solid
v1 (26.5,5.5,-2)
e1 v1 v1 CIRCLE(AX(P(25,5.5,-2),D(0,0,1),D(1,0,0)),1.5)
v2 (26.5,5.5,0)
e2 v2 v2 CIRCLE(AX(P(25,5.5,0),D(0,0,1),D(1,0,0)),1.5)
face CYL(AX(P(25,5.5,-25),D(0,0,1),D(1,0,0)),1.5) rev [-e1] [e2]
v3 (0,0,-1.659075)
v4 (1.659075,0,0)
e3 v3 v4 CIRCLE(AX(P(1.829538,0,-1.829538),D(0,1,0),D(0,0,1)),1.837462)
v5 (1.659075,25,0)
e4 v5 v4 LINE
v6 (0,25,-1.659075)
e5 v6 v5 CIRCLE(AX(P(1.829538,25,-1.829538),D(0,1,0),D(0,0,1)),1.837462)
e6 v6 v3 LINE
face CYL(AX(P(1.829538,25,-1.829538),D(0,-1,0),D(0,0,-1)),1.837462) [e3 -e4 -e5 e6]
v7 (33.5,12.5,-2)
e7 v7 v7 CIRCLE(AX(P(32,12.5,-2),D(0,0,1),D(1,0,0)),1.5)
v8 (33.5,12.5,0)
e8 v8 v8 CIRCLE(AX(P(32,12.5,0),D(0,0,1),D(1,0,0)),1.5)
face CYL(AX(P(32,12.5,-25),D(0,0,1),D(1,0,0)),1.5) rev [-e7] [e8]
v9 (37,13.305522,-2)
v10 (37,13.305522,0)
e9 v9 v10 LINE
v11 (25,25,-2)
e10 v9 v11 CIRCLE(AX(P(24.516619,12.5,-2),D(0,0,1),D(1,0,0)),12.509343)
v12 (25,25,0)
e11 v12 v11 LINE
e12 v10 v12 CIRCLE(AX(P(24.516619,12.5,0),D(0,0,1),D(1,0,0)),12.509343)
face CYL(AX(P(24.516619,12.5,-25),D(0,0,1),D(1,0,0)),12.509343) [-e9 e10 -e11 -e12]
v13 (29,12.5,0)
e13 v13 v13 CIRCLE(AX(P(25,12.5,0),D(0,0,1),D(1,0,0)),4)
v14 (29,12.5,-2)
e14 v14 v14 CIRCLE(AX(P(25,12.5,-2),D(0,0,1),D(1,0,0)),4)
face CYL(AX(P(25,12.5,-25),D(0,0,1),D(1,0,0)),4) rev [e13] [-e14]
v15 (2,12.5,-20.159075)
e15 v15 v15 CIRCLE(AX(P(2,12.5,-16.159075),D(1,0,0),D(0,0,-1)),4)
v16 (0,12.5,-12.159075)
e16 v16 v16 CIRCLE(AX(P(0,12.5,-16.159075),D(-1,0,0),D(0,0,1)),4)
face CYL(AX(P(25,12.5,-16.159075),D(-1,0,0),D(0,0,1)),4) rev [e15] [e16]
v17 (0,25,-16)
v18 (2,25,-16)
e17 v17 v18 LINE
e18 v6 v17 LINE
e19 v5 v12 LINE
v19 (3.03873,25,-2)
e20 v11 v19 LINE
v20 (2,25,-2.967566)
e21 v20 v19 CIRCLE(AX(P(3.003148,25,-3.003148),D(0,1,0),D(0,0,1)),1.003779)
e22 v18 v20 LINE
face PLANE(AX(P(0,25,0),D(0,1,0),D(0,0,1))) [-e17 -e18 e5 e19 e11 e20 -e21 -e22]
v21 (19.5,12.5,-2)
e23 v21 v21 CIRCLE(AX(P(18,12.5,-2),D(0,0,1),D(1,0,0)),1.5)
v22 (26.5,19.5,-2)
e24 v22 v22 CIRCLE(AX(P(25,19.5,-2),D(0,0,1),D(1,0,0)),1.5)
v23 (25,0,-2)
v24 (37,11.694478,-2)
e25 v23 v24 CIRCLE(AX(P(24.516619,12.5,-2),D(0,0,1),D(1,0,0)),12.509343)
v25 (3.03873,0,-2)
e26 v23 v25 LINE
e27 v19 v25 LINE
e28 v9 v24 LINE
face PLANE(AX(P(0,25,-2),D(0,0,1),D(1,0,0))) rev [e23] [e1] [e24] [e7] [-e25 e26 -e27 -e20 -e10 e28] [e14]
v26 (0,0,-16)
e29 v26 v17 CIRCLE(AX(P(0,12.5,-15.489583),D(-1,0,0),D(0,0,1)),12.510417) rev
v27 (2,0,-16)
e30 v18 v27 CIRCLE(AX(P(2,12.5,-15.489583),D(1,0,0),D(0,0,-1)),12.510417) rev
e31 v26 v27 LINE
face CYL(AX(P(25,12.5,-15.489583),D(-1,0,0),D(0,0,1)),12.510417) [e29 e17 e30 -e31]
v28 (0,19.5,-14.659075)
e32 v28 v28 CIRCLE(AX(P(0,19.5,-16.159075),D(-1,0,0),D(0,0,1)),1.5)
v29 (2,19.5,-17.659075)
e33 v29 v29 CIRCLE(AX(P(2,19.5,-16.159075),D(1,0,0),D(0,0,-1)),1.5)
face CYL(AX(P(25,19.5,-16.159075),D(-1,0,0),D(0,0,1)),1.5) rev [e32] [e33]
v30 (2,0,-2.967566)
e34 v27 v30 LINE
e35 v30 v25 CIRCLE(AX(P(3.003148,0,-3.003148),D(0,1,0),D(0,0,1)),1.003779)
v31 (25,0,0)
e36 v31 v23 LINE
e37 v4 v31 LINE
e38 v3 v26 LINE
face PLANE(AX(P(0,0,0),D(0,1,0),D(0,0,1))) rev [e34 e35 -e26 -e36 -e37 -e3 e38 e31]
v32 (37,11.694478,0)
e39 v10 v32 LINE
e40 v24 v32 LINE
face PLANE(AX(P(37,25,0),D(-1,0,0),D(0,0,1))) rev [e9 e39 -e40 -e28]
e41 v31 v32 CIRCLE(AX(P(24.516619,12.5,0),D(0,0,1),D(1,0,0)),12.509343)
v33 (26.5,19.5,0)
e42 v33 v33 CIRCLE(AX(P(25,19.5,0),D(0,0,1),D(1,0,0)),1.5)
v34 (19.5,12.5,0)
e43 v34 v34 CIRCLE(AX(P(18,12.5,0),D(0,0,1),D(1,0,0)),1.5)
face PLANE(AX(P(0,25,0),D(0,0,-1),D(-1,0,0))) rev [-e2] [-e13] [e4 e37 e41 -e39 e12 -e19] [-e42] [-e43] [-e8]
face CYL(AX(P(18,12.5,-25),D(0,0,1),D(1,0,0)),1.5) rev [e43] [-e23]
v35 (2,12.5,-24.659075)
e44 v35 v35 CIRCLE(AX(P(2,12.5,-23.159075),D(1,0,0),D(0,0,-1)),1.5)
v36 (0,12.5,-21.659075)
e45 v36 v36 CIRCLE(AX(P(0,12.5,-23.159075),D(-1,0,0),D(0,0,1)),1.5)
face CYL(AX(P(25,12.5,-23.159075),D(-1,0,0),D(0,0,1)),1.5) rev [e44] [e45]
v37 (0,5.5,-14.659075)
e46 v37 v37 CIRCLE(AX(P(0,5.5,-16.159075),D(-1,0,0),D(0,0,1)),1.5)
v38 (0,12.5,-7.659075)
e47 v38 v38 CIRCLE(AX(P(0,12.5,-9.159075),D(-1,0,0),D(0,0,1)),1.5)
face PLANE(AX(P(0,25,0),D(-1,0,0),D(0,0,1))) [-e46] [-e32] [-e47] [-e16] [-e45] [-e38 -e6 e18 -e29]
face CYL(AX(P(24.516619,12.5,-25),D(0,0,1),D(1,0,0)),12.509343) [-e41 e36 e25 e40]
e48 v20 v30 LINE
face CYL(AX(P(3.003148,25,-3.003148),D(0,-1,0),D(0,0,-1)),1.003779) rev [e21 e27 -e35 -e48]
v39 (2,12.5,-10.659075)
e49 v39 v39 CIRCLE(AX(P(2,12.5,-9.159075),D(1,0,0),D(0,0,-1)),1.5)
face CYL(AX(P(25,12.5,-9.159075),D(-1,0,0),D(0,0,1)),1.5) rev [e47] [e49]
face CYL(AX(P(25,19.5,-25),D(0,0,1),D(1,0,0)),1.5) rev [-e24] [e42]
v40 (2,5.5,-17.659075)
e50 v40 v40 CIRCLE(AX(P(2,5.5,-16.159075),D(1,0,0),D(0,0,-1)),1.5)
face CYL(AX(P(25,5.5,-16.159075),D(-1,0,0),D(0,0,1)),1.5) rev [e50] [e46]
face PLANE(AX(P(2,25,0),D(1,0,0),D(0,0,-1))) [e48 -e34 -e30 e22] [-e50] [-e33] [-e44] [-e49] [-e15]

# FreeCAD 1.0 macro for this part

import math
import FreeCAD as App
import Part
import Sketcher

doc = App.newDocument("Part")
params = doc.addObject("Spreadsheet::Sheet", "Params")
for row, (alias, value) in enumerate([
    ("sketch1_width", "2 mm"),
    ("pad1_length", "25 mm"),
    ("sketch2_height", "12 mm"),
    ("sketch2_width", "12.5 mm"),
    ("pocket1_length", "25 mm"),
    ("sketch3_width", "12 mm"),
    ("pocket2_length", "25 mm"),
    ("sketch4_diameter", "8 mm"),
    ("sketch4_diameter2", "3 mm"),
    ("pocket3_length", "25 mm"),
    ("sketch5_diameter", "8 mm"),
    ("sketch5_diameter2", "3 mm"),
    ("pocket4_length", "25 mm"),
], start=1):
    params.set(f"A{row}", alias)
    params.set(f"B{row}", "=" + value)
    params.setAlias(f"B{row}", alias)

body = doc.addObject("PartDesign::Body", "Body")

# Sketch on XZ plane
sketch1 = doc.addObject("Sketcher::SketchObject", "Sketch")
body.addObject(sketch1)
sketch1.AttachmentSupport = (doc.XZ_Plane, [""])
sketch1.MapMode = "FlatFace"
sketch1.addGeometry(Part.ArcOfCircle(Part.Circle(App.Vector(1.829538, -1.829538, 0), App.Vector(0, 0, 1), 1.837462), math.radians(95.323014), math.radians(174.676986)), False)
sketch1.addGeometry(Part.LineSegment(App.Vector(1.659075, 0, 0), App.Vector(37, 0, 0)), False)
sketch1.addGeometry(Part.LineSegment(App.Vector(37, 0, 0), App.Vector(37, -2, 0)), False)
sketch1.addGeometry(Part.LineSegment(App.Vector(37, -2, 0), App.Vector(3.03873, -2, 0)), False)
sketch1.addGeometry(Part.ArcOfCircle(Part.Circle(App.Vector(3.003148, -3.003147, 0), App.Vector(0, 0, 1), 1.003778), math.radians(87.96856), math.radians(92.03144)), False)
sketch1.addGeometry(Part.ArcOfCircle(Part.Circle(App.Vector(3.003148, -3.003148, 0), App.Vector(0, 0, 1), 1.003779), math.radians(92.031438), math.radians(177.968562)), False)
sketch1.addGeometry(Part.LineSegment(App.Vector(2, -2.967566, 0), App.Vector(2, -28, 0)), False)
sketch1.addGeometry(Part.LineSegment(App.Vector(2, -28, 0), App.Vector(0, -28, 0)), False)
sketch1.addGeometry(Part.LineSegment(App.Vector(0, -28, 0), App.Vector(0, -1.659075, 0)), False)
sketch1.addConstraint(Sketcher.Constraint("Coincident", 0, 1, 1, 1))
sketch1.addConstraint(Sketcher.Constraint("Coincident", 1, 2, 2, 1))
sketch1.addConstraint(Sketcher.Constraint("Coincident", 2, 2, 3, 1))
sketch1.addConstraint(Sketcher.Constraint("Coincident", 3, 2, 4, 1))
sketch1.addConstraint(Sketcher.Constraint("Tangent", 4, 2, 5, 1))
sketch1.addConstraint(Sketcher.Constraint("Coincident", 5, 2, 6, 1))
sketch1.addConstraint(Sketcher.Constraint("Coincident", 6, 2, 7, 1))
sketch1.addConstraint(Sketcher.Constraint("Coincident", 7, 2, 8, 1))
sketch1.addConstraint(Sketcher.Constraint("Coincident", 8, 2, 0, 2))
sketch1.addConstraint(Sketcher.Constraint("Horizontal", 1))
sketch1.addConstraint(Sketcher.Constraint("Vertical", 2))
sketch1.addConstraint(Sketcher.Constraint("Horizontal", 3))
sketch1.addConstraint(Sketcher.Constraint("Vertical", 6))
sketch1.addConstraint(Sketcher.Constraint("Horizontal", 7))
sketch1.addConstraint(Sketcher.Constraint("Vertical", 8))
sketch1.addConstraint(Sketcher.Constraint("Equal", 4, 5))
sketch1.addConstraint(Sketcher.Constraint("PointOnObject", 0, 1, -1))
sketch1.addConstraint(Sketcher.Constraint("PointOnObject", 7, 2, -2))
sketch1.addConstraint(Sketcher.Constraint("Horizontal", 3, 2, 4, 2))
sketch1.addConstraint(Sketcher.Constraint("Equal", 7, 2))
sketch1.addConstraint(Sketcher.Constraint("DistanceX", 7, 2, 7, 1, 2.0))
sketch1.addConstraint(Sketcher.Constraint("DistanceX", -1, 1, 1, 2, 37.0))
sketch1.addConstraint(Sketcher.Constraint("DistanceY", 6, 2, -1, 1, 28.0))
sketch1.addConstraint(Sketcher.Constraint("Radius", 0, 1.837462))
sketch1.addConstraint(Sketcher.Constraint("Radius", 5, 1.003779))
sketch1.addConstraint(Sketcher.Constraint("DistanceX", 3, 2, 3, 1, 33.96127))
sketch1.addConstraint(Sketcher.Constraint("DistanceX", 1, 1, 1, 2, 35.340925))
sketch1.addConstraint(Sketcher.Constraint("DistanceY", 6, 2, 6, 1, 25.032434))
sketch1.addConstraint(Sketcher.Constraint("DistanceY", 8, 1, 8, 2, 26.340925))
sketch1.setExpression("Constraints[20]", "Params.sketch1_width")
pad1 = doc.addObject("PartDesign::Pad", "Pad")
body.addObject(pad1)
pad1.Profile = sketch1
pad1.setExpression("Length", "Params.pad1_length")
pad1.Reversed = True

# Sketch on YZ plane
sketch2 = doc.addObject("Sketcher::SketchObject", "Sketch001")
body.addObject(sketch2)
sketch2.AttachmentSupport = (doc.YZ_Plane, [""])
sketch2.MapMode = "FlatFace"
sketch2.addGeometry(Part.ArcOfCircle(Part.Circle(App.Vector(12.5, -15.489583, 0), App.Vector(0, 0, 1), 12.510417), math.radians(-90), math.radians(-2.338279)), False)
sketch2.addGeometry(Part.LineSegment(App.Vector(25, -16, 0), App.Vector(25, -28, 0)), False)
sketch2.addGeometry(Part.LineSegment(App.Vector(25, -28, 0), App.Vector(12.5, -28, 0)), False)
sketch2.addGeometry(Part.ArcOfCircle(Part.Circle(App.Vector(12.5, -15.489583, 0), App.Vector(0, 0, 1), 12.510417), math.radians(-177.661721), math.radians(-90)), False)
sketch2.addGeometry(Part.LineSegment(App.Vector(12.5, -28, 0), App.Vector(0, -28, 0)), False)
sketch2.addGeometry(Part.LineSegment(App.Vector(0, -28, 0), App.Vector(0, -16, 0)), False)
sketch2.addConstraint(Sketcher.Constraint("Coincident", 0, 2, 1, 1))
sketch2.addConstraint(Sketcher.Constraint("Coincident", 1, 2, 2, 1))
sketch2.addConstraint(Sketcher.Constraint("Tangent", 2, 2, 0, 1))
sketch2.addConstraint(Sketcher.Constraint("Tangent", 3, 2, 4, 1))
sketch2.addConstraint(Sketcher.Constraint("Coincident", 4, 2, 5, 1))
sketch2.addConstraint(Sketcher.Constraint("Coincident", 5, 2, 3, 1))
sketch2.addConstraint(Sketcher.Constraint("Vertical", 1))
sketch2.addConstraint(Sketcher.Constraint("Horizontal", 2))
sketch2.addConstraint(Sketcher.Constraint("Horizontal", 4))
sketch2.addConstraint(Sketcher.Constraint("Vertical", 5))
sketch2.addConstraint(Sketcher.Constraint("Coincident", 3, 3, 0, 3))
sketch2.addConstraint(Sketcher.Constraint("Equal", 0, 3))
sketch2.addConstraint(Sketcher.Constraint("PointOnObject", 4, 2, -2))
sketch2.addConstraint(Sketcher.Constraint("Horizontal", 0, 2, 5, 2))
sketch2.addConstraint(Sketcher.Constraint("DistanceY", 1, 2, 1, 1, 12.0))
sketch2.addConstraint(Sketcher.Constraint("DistanceX", 2, 2, 2, 1, 12.5))
sketch2.addConstraint(Sketcher.Constraint("DistanceY", 0, 2, -1, 1, 16.0))
sketch2.setExpression("Constraints[14]", "Params.sketch2_height")
sketch2.setExpression("Constraints[15]", "Params.sketch2_width")
pocket1 = doc.addObject("PartDesign::Pocket", "Pocket")
body.addObject(pocket1)
pocket1.Profile = sketch2
pocket1.setExpression("Length", "Params.pocket1_length")
pocket1.Reversed = True

# Sketch on XY plane
sketch3 = doc.addObject("Sketcher::SketchObject", "Sketch002")
body.addObject(sketch3)
sketch3.AttachmentSupport = (doc.XY_Plane, [""])
sketch3.MapMode = "FlatFace"
sketch3.addGeometry(Part.LineSegment(App.Vector(37, 25, 0), App.Vector(25, 25, 0)), False)
sketch3.addGeometry(Part.ArcOfCircle(Part.Circle(App.Vector(24.516619, 12.5, 0), App.Vector(0, 0, 1), 12.509343), math.radians(3.692037), math.radians(87.78545)), False)
sketch3.addGeometry(Part.LineSegment(App.Vector(37, 13.305522, 0), App.Vector(37, 25, 0)), False)
sketch3.addGeometry(Part.LineSegment(App.Vector(37, 0, 0), App.Vector(37, 11.694478, 0)), False)
sketch3.addGeometry(Part.ArcOfCircle(Part.Circle(App.Vector(24.516619, 12.5, 0), App.Vector(0, 0, 1), 12.509343), math.radians(-87.78545), math.radians(-3.692037)), False)
sketch3.addGeometry(Part.LineSegment(App.Vector(25, 0, 0), App.Vector(37, 0, 0)), False)
sketch3.addConstraint(Sketcher.Constraint("Coincident", 0, 2, 1, 2))
sketch3.addConstraint(Sketcher.Constraint("Coincident", 1, 1, 2, 1))
sketch3.addConstraint(Sketcher.Constraint("Coincident", 2, 2, 0, 1))
sketch3.addConstraint(Sketcher.Constraint("Coincident", 3, 2, 4, 2))
sketch3.addConstraint(Sketcher.Constraint("Coincident", 4, 1, 5, 1))
sketch3.addConstraint(Sketcher.Constraint("Coincident", 5, 2, 3, 1))
sketch3.addConstraint(Sketcher.Constraint("Horizontal", 0))
sketch3.addConstraint(Sketcher.Constraint("Vertical", 2))
sketch3.addConstraint(Sketcher.Constraint("Vertical", 3))
sketch3.addConstraint(Sketcher.Constraint("Horizontal", 5))
sketch3.addConstraint(Sketcher.Constraint("Coincident", 4, 3, 1, 3))
sketch3.addConstraint(Sketcher.Constraint("Equal", 1, 4))
sketch3.addConstraint(Sketcher.Constraint("PointOnObject", 4, 1, -1))
sketch3.addConstraint(Sketcher.Constraint("Vertical", 2, 2, 3, 2))
sketch3.addConstraint(Sketcher.Constraint("Vertical", 0, 2, 4, 1))
sketch3.addConstraint(Sketcher.Constraint("DistanceX", 0, 2, 0, 1, 12.0))
sketch3.addConstraint(Sketcher.Constraint("DistanceX", -1, 1, 0, 2, 25.0))
sketch3.addConstraint(Sketcher.Constraint("DistanceY", -1, 1, 0, 2, 25.0))
sketch3.addConstraint(Sketcher.Constraint("DistanceY", 2, 1, 2, 2, 11.694478))
sketch3.setExpression("Constraints[15]", "Params.sketch3_width")
pocket2 = doc.addObject("PartDesign::Pocket", "Pocket001")
body.addObject(pocket2)
pocket2.Profile = sketch3
pocket2.setExpression("Length", "Params.pocket2_length")

# Sketch on XY plane
sketch4 = doc.addObject("Sketcher::SketchObject", "Sketch003")
body.addObject(sketch4)
sketch4.AttachmentSupport = (doc.XY_Plane, [""])
sketch4.MapMode = "FlatFace"
sketch4.addGeometry(Part.Circle(App.Vector(25, 12.5, 0), App.Vector(0, 0, 1), 4), False)
sketch4.addGeometry(Part.Circle(App.Vector(25, 19.5, 0), App.Vector(0, 0, 1), 1.5), False)
sketch4.addGeometry(Part.Circle(App.Vector(32, 12.5, 0), App.Vector(0, 0, 1), 1.5), False)
sketch4.addGeometry(Part.Circle(App.Vector(25, 5.5, 0), App.Vector(0, 0, 1), 1.5), False)
sketch4.addGeometry(Part.Circle(App.Vector(18, 12.5, 0), App.Vector(0, 0, 1), 1.5), False)
sketch4.addConstraint(Sketcher.Constraint("Equal", 1, 2))
sketch4.addConstraint(Sketcher.Constraint("Equal", 2, 3))
sketch4.addConstraint(Sketcher.Constraint("Equal", 3, 4))
sketch4.addConstraint(Sketcher.Constraint("Horizontal", 0, 3, 2, 3))
sketch4.addConstraint(Sketcher.Constraint("Horizontal", 2, 3, 4, 3))
sketch4.addConstraint(Sketcher.Constraint("Vertical", 0, 3, 1, 3))
sketch4.addConstraint(Sketcher.Constraint("Vertical", 1, 3, 3, 3))
sketch4.addConstraint(Sketcher.Constraint("Diameter", 0, 8.0))
sketch4.addConstraint(Sketcher.Constraint("Diameter", 1, 3.0))
sketch4.addConstraint(Sketcher.Constraint("DistanceX", -1, 1, 0, 3, 25.0))
sketch4.addConstraint(Sketcher.Constraint("DistanceX", -1, 1, 2, 3, 32.0))
sketch4.addConstraint(Sketcher.Constraint("DistanceX", -1, 1, 4, 3, 18.0))
sketch4.addConstraint(Sketcher.Constraint("DistanceY", 0, 3, 1, 3, 7.0))
sketch4.addConstraint(Sketcher.Constraint("DistanceY", 3, 3, 0, 3, 7.0))
sketch4.addConstraint(Sketcher.Constraint("DistanceY", -1, 1, 0, 3, 12.5))
sketch4.setExpression("Constraints[7]", "Params.sketch4_diameter")
sketch4.setExpression("Constraints[8]", "Params.sketch4_diameter2")
pocket3 = doc.addObject("PartDesign::Pocket", "Pocket002")
body.addObject(pocket3)
pocket3.Profile = sketch4
pocket3.setExpression("Length", "Params.pocket3_length")

# Sketch on YZ plane
sketch5 = doc.addObject("Sketcher::SketchObject", "Sketch004")
body.addObject(sketch5)
sketch5.AttachmentSupport = (doc.YZ_Plane, [""])
sketch5.MapMode = "FlatFace"
sketch5.addGeometry(Part.Circle(App.Vector(12.5, -16.159075, 0), App.Vector(0, 0, 1), 4), False)
sketch5.addGeometry(Part.Circle(App.Vector(19.5, -16.159075, 0), App.Vector(0, 0, 1), 1.5), False)
sketch5.addGeometry(Part.Circle(App.Vector(12.5, -9.159075, 0), App.Vector(0, 0, 1), 1.5), False)
sketch5.addGeometry(Part.Circle(App.Vector(5.5, -16.159075, 0), App.Vector(0, 0, 1), 1.5), False)
sketch5.addGeometry(Part.Circle(App.Vector(12.5, -23.159075, 0), App.Vector(0, 0, 1), 1.5), False)
sketch5.addConstraint(Sketcher.Constraint("Equal", 1, 2))
sketch5.addConstraint(Sketcher.Constraint("Equal", 2, 3))
sketch5.addConstraint(Sketcher.Constraint("Equal", 3, 4))
sketch5.addConstraint(Sketcher.Constraint("Horizontal", 0, 3, 1, 3))
sketch5.addConstraint(Sketcher.Constraint("Horizontal", 1, 3, 3, 3))
sketch5.addConstraint(Sketcher.Constraint("Vertical", 0, 3, 2, 3))
sketch5.addConstraint(Sketcher.Constraint("Vertical", 2, 3, 4, 3))
sketch5.addConstraint(Sketcher.Constraint("Diameter", 0, 8.0))
sketch5.addConstraint(Sketcher.Constraint("Diameter", 1, 3.0))
sketch5.addConstraint(Sketcher.Constraint("DistanceX", 0, 3, 1, 3, 7.0))
sketch5.addConstraint(Sketcher.Constraint("DistanceY", 0, 3, 2, 3, 7.0))
sketch5.addConstraint(Sketcher.Constraint("DistanceX", 3, 3, 0, 3, 7.0))
sketch5.addConstraint(Sketcher.Constraint("DistanceY", 4, 3, 0, 3, 7.0))
sketch5.addConstraint(Sketcher.Constraint("DistanceX", -1, 1, 0, 3, 12.5))
sketch5.addConstraint(Sketcher.Constraint("DistanceY", 0, 3, -1, 1, 16.159075))
sketch5.setExpression("Constraints[7]", "Params.sketch5_diameter")
sketch5.setExpression("Constraints[8]", "Params.sketch5_diameter2")
pocket4 = doc.addObject("PartDesign::Pocket", "Pocket003")
body.addObject(pocket4)
pocket4.Profile = sketch5
pocket4.setExpression("Length", "Params.pocket4_length")
pocket4.Reversed = True

doc.recompute()
